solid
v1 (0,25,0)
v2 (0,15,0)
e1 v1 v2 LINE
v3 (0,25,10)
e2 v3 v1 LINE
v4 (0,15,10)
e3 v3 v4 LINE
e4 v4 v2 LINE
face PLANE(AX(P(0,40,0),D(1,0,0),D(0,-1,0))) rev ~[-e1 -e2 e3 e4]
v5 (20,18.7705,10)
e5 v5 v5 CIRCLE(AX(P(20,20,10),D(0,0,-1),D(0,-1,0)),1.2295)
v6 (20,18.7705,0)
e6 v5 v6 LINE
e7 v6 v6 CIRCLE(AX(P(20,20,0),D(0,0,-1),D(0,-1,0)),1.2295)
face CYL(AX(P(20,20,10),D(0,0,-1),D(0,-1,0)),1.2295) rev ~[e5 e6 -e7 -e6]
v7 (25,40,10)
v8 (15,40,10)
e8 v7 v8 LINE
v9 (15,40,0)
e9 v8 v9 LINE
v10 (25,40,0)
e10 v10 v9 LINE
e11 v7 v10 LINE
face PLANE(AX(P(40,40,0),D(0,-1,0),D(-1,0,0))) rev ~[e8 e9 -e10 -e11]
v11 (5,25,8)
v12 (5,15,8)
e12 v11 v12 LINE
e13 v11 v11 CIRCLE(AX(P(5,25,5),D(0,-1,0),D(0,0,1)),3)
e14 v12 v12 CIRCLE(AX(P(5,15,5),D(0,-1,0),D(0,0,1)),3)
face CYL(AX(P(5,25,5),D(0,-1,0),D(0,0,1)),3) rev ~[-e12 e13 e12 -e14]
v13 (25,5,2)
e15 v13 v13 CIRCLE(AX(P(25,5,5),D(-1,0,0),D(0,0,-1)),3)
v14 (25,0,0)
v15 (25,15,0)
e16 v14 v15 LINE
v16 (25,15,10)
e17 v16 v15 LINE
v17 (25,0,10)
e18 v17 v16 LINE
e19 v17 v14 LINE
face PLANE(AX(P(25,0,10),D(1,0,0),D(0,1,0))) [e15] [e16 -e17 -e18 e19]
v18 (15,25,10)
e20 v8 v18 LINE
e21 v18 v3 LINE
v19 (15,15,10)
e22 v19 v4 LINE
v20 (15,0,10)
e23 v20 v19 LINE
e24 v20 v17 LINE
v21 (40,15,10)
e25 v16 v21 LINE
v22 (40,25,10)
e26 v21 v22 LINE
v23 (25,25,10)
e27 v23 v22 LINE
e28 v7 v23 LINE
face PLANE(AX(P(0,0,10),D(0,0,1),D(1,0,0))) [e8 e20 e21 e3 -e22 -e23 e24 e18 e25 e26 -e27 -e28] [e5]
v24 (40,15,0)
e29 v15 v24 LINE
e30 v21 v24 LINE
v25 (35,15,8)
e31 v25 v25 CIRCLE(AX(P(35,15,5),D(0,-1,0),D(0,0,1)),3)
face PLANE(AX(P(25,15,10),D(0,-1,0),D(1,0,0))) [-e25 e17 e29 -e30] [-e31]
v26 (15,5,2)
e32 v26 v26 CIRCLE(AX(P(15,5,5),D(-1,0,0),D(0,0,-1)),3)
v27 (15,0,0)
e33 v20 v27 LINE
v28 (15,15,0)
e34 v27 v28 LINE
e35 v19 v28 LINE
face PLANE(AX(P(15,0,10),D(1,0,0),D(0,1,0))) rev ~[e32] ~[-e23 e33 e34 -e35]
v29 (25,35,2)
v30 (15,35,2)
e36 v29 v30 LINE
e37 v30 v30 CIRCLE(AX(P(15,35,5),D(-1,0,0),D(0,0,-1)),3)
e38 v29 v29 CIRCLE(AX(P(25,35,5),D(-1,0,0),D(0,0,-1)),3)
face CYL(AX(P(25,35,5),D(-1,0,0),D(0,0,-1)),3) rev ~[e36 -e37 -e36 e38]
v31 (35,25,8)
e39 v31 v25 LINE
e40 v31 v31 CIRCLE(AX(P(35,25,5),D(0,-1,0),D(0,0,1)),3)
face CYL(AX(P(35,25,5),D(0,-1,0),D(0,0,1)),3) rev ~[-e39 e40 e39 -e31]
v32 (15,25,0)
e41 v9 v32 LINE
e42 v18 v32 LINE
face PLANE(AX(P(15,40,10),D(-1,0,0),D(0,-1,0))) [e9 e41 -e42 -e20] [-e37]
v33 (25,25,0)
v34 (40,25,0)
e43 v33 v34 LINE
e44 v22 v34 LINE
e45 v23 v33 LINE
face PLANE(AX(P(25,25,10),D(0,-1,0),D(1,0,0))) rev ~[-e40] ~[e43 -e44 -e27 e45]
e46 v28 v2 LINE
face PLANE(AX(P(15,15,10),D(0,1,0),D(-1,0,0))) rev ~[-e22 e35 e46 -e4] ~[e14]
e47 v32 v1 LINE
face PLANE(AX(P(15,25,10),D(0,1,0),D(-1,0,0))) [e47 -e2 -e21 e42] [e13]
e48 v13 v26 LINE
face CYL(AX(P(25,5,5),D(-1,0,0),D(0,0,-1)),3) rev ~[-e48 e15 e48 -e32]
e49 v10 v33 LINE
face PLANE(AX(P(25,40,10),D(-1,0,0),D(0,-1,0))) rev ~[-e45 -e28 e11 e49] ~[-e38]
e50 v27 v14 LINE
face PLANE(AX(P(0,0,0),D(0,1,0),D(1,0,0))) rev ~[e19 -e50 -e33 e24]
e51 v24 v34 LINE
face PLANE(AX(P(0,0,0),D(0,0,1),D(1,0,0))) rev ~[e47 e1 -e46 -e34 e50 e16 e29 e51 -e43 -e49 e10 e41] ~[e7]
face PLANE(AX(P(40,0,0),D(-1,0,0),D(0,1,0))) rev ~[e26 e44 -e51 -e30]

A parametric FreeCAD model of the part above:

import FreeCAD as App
import Part
import Sketcher
from FreeCAD import Vector
Q = App.Units.Quantity


def add_polygon(sketch, points):
    """Adds a closed chain of lines whose ends are joined by coincident constraints."""
    first, n = sketch.GeometryCount, len(points)
    for a, b in zip(points, points[1:] + points[:1]):
        sketch.addGeometry(Part.LineSegment(App.Vector(*a, 0), App.Vector(*b, 0)), False)
    for i in range(n):
        sketch.addConstraint(Sketcher.Constraint("Coincident", first + i, 2, first + (i + 1) % n, 1))

doc = App.newDocument("Part")
body = doc.addObject("PartDesign::Body", "Body")

# Sketch on XY plane
sketch1 = doc.addObject("Sketcher::SketchObject", "Sketch")
body.addObject(sketch1)
sketch1.AttachmentSupport = (doc.XY_Plane, [""])
sketch1.MapMode = "FlatFace"
add_polygon(sketch1, [(0, 40), (0, 0), (40, 0), (40, 40)])  # lines 0-3
sketch1.addConstraint([
    Sketcher.Constraint("Vertical", 0),
    Sketcher.Constraint("Horizontal", 1),
    Sketcher.Constraint("Vertical", 2),
    Sketcher.Constraint("Horizontal", 3),
    Sketcher.Constraint("Coincident", 0, 2, -1, 1),
    Sketcher.Constraint("Equal", 3, 0),
    Sketcher.Constraint("DistanceX", 1, 1, 1, 2, Q("40 mm")),
])
pad1 = doc.addObject("PartDesign::Pad", "Pad")
body.addObject(pad1)
pad1.Profile = sketch1
pad1.Length = 10

# Sketch on XY plane
sketch2 = doc.addObject("Sketcher::SketchObject", "Sketch001")
body.addObject(sketch2)
sketch2.AttachmentSupport = (doc.XY_Plane, [""])
sketch2.MapMode = "FlatFace"
sketch2.AttachmentOffset = App.Placement(Vector(0, 0, 10), App.Rotation())
add_polygon(sketch2, [(40, 25), (40, 40), (25, 40), (25, 25)])  # lines 0-3
sketch2.addConstraint([
    Sketcher.Constraint("Vertical", 0),
    Sketcher.Constraint("Horizontal", 1),
    Sketcher.Constraint("Vertical", 2),
    Sketcher.Constraint("Horizontal", 3),
    Sketcher.Constraint("Equal", 3, 0),
    Sketcher.Constraint("DistanceX", 1, 2, 1, 1, Q("15 mm")),
    Sketcher.Constraint("DistanceX", -1, 1, 0, 2, Q("40 mm")),
    Sketcher.Constraint("DistanceY", -1, 1, 0, 2, Q("40 mm")),
])
pocket1 = doc.addObject("PartDesign::Pocket", "Pocket")
body.addObject(pocket1)
pocket1.Profile = sketch2
pocket1.Length = 10

# Sketch on XY plane
sketch3 = doc.addObject("Sketcher::SketchObject", "Sketch002")
body.addObject(sketch3)
sketch3.AttachmentSupport = (doc.XY_Plane, [""])
sketch3.MapMode = "FlatFace"
sketch3.AttachmentOffset = App.Placement(Vector(0, 0, 10), App.Rotation())
add_polygon(sketch3, [(15, 40), (0, 40), (0, 25), (15, 25)])  # lines 0-3
add_polygon(sketch3, [(0, 15), (0, 0), (15, 0), (15, 15)])  # lines 4-7
add_polygon(sketch3, [(25, 15), (25, 0), (40, 0), (40, 15)])  # lines 8-11
sketch3.addConstraint([
    Sketcher.Constraint("Horizontal", 0),
    Sketcher.Constraint("Vertical", 1),
    Sketcher.Constraint("Horizontal", 2),
    Sketcher.Constraint("Vertical", 3),
    Sketcher.Constraint("Vertical", 4),
    Sketcher.Constraint("Horizontal", 5),
    Sketcher.Constraint("Vertical", 6),
    Sketcher.Constraint("Horizontal", 7),
    Sketcher.Constraint("Vertical", 8),
    Sketcher.Constraint("Horizontal", 9),
    Sketcher.Constraint("Vertical", 10),
    Sketcher.Constraint("Horizontal", 11),
    Sketcher.Constraint("Coincident", 4, 2, -1, 1),
    Sketcher.Constraint("PointOnObject", 0, 2, -2),
    Sketcher.Constraint("PointOnObject", 8, 2, -1),
    Sketcher.Constraint("Horizontal", 7, 2, 10, 2),
    Sketcher.Constraint("Vertical", 3, 2, 5, 2),
    Sketcher.Constraint("Equal", 7, 9),
    Sketcher.Constraint("Equal", 11, 1),
    Sketcher.Constraint("Equal", 3, 4),
    Sketcher.Constraint("DistanceX", 0, 2, 0, 1, Q("15 mm")),
    Sketcher.Constraint("DistanceY", -1, 1, 0, 2, Q("40 mm")),
    Sketcher.Constraint("DistanceX", -1, 1, 8, 2, Q("25 mm")),
])
pocket2 = doc.addObject("PartDesign::Pocket", "Pocket001")
body.addObject(pocket2)
pocket2.Profile = sketch3
pocket2.Length = 10

# Sketch on YZ plane
sketch4 = doc.addObject("Sketcher::SketchObject", "Sketch003")
body.addObject(sketch4)
sketch4.AttachmentSupport = (doc.YZ_Plane, [""])
sketch4.MapMode = "FlatFace"
sketch4.AttachmentOffset = App.Placement(Vector(0, 0, 25), App.Rotation())
sketch4.addGeometry([
    Part.Circle(Vector(35, 5, 0), Vector(0, 0, 1), 3),
    Part.Circle(Vector(5, 5, 0), Vector(0, 0, 1), 3),
], False)
sketch4.addConstraint([
    Sketcher.Constraint("Equal", 0, 1),
    Sketcher.Constraint("Horizontal", 0, 3, 1, 3),
    Sketcher.Constraint("Diameter", 0, Q("6 mm")),
    Sketcher.Constraint("DistanceX", -1, 1, 0, 3, Q("35 mm")),
    Sketcher.Constraint("DistanceY", -1, 1, 0, 3, Q("5 mm")),
    Sketcher.Constraint("DistanceX", -1, 1, 1, 3, Q("5 mm")),
])
doc.recompute()
hole = doc.addObject("PartDesign::Hole", "Hole")
body.addObject(hole)
hole.Profile = sketch4
hole.ThreadType = "None"
hole.Diameter = 6
hole.DepthType = "ThroughAll"

# Sketch on XZ plane
sketch5 = doc.addObject("Sketcher::SketchObject", "Sketch004")
body.addObject(sketch5)
sketch5.AttachmentSupport = (doc.XZ_Plane, [""])
sketch5.MapMode = "FlatFace"
sketch5.AttachmentOffset = App.Placement(Vector(0, 0, -25), App.Rotation())
sketch5.addGeometry([
    Part.Circle(Vector(5, 5, 0), Vector(0, 0, 1), 3),
    Part.Circle(Vector(35, 5, 0), Vector(0, 0, 1), 3),
], False)
sketch5.addConstraint([
    Sketcher.Constraint("Equal", 0, 1),
    Sketcher.Constraint("Horizontal", 0, 3, 1, 3),
    Sketcher.Constraint("Diameter", 0, Q("6 mm")),
    Sketcher.Constraint("DistanceX", -1, 1, 0, 3, Q("5 mm")),
    Sketcher.Constraint("DistanceY", -1, 1, 0, 3, Q("5 mm")),
    Sketcher.Constraint("DistanceX", -1, 1, 1, 3, Q("35 mm")),
])
doc.recompute()
hole2 = doc.addObject("PartDesign::Hole", "Hole001")
body.addObject(hole2)
hole2.Profile = sketch5
hole2.ThreadType = "None"
hole2.Diameter = 6
hole2.DepthType = "ThroughAll"
hole2.Reversed = True

# Sketch on XY plane
sketch6 = doc.addObject("Sketcher::SketchObject", "Sketch005")
body.addObject(sketch6)
sketch6.AttachmentSupport = (doc.XY_Plane, [""])
sketch6.MapMode = "FlatFace"
sketch6.AttachmentOffset = App.Placement(Vector(0, 0, 10), App.Rotation())
sketch6.addGeometry(Part.Circle(Vector(20, 20, 0), Vector(0, 0, 1), 1.2295), False)
sketch6.addConstraint([
    Sketcher.Constraint("Diameter", 0, Q("2.459 mm")),
    Sketcher.Constraint("DistanceX", -1, 1, 0, 3, Q("20 mm")),
    Sketcher.Constraint("DistanceY", -1, 1, 0, 3, Q("20 mm")),
])
doc.recompute()
hole3 = doc.addObject("PartDesign::Hole", "Hole002")
body.addObject(hole3)
hole3.Profile = sketch6
hole3.ThreadType = "None"
hole3.Diameter = 2.459
hole3.DepthType = "ThroughAll"

doc.recompute()
